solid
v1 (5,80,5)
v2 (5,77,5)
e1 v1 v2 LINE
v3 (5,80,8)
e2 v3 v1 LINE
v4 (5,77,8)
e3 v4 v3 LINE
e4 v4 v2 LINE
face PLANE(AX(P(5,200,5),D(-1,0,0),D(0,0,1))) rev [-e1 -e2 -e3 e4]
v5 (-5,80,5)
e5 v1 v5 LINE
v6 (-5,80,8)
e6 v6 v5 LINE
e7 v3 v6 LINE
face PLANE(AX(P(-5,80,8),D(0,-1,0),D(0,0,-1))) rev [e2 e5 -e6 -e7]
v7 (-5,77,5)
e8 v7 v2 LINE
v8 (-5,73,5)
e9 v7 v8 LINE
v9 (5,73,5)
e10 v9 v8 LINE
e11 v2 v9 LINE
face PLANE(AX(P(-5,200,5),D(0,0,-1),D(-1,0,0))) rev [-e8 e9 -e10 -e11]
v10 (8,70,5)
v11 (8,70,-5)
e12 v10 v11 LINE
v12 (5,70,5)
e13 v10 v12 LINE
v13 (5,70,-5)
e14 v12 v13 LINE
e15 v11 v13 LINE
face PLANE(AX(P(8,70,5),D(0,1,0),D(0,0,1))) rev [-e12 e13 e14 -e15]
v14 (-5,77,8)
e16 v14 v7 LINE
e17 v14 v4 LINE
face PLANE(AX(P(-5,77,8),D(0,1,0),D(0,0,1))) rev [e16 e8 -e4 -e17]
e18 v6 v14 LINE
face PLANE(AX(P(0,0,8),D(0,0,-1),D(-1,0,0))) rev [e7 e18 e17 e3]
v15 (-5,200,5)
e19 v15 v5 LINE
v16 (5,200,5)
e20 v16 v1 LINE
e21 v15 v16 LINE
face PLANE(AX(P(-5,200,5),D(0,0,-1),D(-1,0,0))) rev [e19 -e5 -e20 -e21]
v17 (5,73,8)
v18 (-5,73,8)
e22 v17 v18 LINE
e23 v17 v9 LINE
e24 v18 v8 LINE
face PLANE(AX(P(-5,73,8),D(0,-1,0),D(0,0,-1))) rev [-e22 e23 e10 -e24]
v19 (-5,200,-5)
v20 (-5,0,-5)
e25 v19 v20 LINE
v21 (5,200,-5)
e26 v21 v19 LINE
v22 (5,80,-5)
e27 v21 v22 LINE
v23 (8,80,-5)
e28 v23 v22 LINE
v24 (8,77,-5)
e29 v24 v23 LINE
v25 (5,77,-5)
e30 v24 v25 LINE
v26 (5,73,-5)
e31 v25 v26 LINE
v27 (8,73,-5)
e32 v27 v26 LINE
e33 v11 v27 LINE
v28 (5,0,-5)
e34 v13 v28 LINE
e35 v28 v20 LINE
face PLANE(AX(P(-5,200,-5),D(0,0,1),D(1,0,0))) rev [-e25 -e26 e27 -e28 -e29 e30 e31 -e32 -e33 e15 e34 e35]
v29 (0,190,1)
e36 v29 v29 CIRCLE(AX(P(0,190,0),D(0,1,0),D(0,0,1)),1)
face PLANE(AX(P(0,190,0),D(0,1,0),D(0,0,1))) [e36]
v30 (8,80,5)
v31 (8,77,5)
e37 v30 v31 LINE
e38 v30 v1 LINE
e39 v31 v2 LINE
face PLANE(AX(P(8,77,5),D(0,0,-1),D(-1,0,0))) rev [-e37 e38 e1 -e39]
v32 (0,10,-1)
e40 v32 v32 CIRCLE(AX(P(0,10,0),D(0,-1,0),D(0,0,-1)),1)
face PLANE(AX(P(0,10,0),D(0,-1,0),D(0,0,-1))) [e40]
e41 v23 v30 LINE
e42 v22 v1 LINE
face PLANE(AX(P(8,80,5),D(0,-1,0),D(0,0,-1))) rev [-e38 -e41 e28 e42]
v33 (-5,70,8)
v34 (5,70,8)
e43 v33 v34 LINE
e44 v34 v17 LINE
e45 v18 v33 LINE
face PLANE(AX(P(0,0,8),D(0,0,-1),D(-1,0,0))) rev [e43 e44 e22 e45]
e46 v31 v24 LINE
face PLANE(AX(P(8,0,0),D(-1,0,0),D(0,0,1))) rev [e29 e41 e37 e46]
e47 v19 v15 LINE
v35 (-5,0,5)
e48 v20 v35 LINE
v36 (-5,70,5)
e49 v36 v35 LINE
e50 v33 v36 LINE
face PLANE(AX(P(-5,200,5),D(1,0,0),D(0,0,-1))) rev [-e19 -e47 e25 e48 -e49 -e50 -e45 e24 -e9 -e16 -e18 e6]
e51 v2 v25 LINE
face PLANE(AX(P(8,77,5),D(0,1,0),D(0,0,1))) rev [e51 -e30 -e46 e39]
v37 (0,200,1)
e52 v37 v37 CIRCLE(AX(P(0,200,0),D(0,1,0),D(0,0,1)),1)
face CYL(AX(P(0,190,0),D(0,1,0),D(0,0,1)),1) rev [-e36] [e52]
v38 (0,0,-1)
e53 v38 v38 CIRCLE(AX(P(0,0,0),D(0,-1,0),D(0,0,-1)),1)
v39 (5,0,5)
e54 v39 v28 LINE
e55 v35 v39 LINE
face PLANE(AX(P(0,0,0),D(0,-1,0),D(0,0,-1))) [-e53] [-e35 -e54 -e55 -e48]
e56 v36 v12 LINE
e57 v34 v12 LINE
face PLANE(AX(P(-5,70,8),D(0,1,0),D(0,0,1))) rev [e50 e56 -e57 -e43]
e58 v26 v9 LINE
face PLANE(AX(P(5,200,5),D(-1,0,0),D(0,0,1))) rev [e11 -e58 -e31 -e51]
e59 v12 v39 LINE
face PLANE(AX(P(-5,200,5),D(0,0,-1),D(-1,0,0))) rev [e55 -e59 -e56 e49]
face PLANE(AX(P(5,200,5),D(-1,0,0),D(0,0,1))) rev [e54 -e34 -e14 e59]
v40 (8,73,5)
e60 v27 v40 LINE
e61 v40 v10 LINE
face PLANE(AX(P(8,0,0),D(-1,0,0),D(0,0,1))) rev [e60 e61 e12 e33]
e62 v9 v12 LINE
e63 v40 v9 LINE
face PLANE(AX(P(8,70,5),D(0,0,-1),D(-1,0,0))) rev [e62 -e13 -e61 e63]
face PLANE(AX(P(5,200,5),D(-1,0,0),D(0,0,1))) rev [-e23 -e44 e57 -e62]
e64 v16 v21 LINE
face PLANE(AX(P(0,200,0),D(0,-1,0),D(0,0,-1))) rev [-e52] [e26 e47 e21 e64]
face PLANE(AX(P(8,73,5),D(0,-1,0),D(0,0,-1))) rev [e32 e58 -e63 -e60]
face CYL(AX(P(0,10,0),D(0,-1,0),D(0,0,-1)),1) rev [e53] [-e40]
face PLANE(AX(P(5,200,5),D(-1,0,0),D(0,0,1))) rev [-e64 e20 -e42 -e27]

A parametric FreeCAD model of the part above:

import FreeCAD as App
import Part
import Sketcher


def add_polygon(sketch, points):
    """Adds a closed chain of lines whose ends are joined by coincident constraints."""
    first, n = sketch.GeometryCount, len(points)
    for a, b in zip(points, points[1:] + points[:1]):
        sketch.addGeometry(Part.LineSegment(App.Vector(*a, 0), App.Vector(*b, 0)), False)
    for i in range(n):
        sketch.addConstraint(Sketcher.Constraint("Coincident", first + i, 2, first + (i + 1) % n, 1))

doc = App.newDocument("Part")
params = doc.addObject("Spreadsheet::Sheet", "Params")
for row, (alias, value) in enumerate([
    ("sketch1_width", "10 mm"),
    ("pad1_length", "200 mm"),
    ("sketch2_diameter", "2 mm"),
    ("pocket1_length", "10 mm"),
    ("sketch3_diameter", "2 mm"),
    ("pocket2_length", "10 mm"),
    ("sketch4_width", "10 mm"),
    ("sketch4_height", "3 mm"),
    ("pad2_length", "3 mm"),
    ("sketch5_width", "3 mm"),
    ("sketch5_height", "10 mm"),
    ("pad3_length", "3 mm"),
], start=1):
    params.set(f"A{row}", alias)
    params.set(f"B{row}", "=" + value)
    params.setAlias(f"B{row}", alias)

body = doc.addObject("PartDesign::Body", "Body")

sketch1 = doc.addObject("Sketcher::SketchObject", "Sketch")
body.addObject(sketch1)
sketch1.AttachmentSupport = (doc.XZ_Plane, [""])
sketch1.MapMode = "FlatFace"
add_polygon(sketch1, [(-5, -5), (-5, 5), (5, 5), (5, -5)])
sketch1.addConstraint(Sketcher.Constraint("Vertical", 0))
sketch1.addConstraint(Sketcher.Constraint("Horizontal", 1))
sketch1.addConstraint(Sketcher.Constraint("Vertical", 2))
sketch1.addConstraint(Sketcher.Constraint("Horizontal", 3))
sketch1.addConstraint(Sketcher.Constraint("Symmetric", 0, 2, 2, 2, -1, 1))
sketch1.addConstraint(Sketcher.Constraint("Equal", 3, 0))
sketch1.addConstraint(Sketcher.Constraint("DistanceX", 1, 1, 1, 2, 10.0))
sketch1.setExpression("Constraints[10]", "Params.sketch1_width")
pad1 = doc.addObject("PartDesign::Pad", "Pad")
body.addObject(pad1)
pad1.Profile = sketch1
pad1.setExpression("Length", "Params.pad1_length")
pad1.Reversed = True

sketch2 = doc.addObject("Sketcher::SketchObject", "Sketch001")
body.addObject(sketch2)
sketch2.AttachmentSupport = (doc.XZ_Plane, [""])
sketch2.MapMode = "FlatFace"
sketch2.AttachmentOffset = App.Placement(App.Vector(0, 0, -200), App.Rotation())
sketch2.addGeometry(Part.Circle(App.Vector(0, 0, 0), App.Vector(0, 0, 1), 1), False)
sketch2.addConstraint(Sketcher.Constraint("Coincident", 0, 3, -1, 1))
sketch2.addConstraint(Sketcher.Constraint("Diameter", 0, 2.0))
sketch2.setExpression("Constraints[1]", "Params.sketch2_diameter")
pocket1 = doc.addObject("PartDesign::Pocket", "Pocket")
body.addObject(pocket1)
pocket1.Profile = sketch2
pocket1.setExpression("Length", "Params.pocket1_length")
pocket1.Reversed = True

sketch3 = doc.addObject("Sketcher::SketchObject", "Sketch002")
body.addObject(sketch3)
sketch3.AttachmentSupport = (doc.XZ_Plane, [""])
sketch3.MapMode = "FlatFace"
sketch3.AttachmentOffset = App.Placement(App.Vector(0, 0, -10), App.Rotation())
sketch3.addGeometry(Part.Circle(App.Vector(0, 0, 0), App.Vector(0, 0, 1), 1), False)
sketch3.addConstraint(Sketcher.Constraint("Coincident", 0, 3, -1, 1))
sketch3.addConstraint(Sketcher.Constraint("Diameter", 0, 2.0))
sketch3.setExpression("Constraints[1]", "Params.sketch3_diameter")
pocket2 = doc.addObject("PartDesign::Pocket", "Pocket001")
body.addObject(pocket2)
pocket2.Profile = sketch3
pocket2.setExpression("Length", "Params.pocket2_length")
pocket2.Reversed = True

sketch4 = doc.addObject("Sketcher::SketchObject", "Sketch003")
body.addObject(sketch4)
sketch4.AttachmentSupport = (doc.XY_Plane, [""])
sketch4.MapMode = "FlatFace"
sketch4.AttachmentOffset = App.Placement(App.Vector(0, 0, 5), App.Rotation())
add_polygon(sketch4, [(-5, 73), (-5, 70), (5, 70), (5, 73)])
add_polygon(sketch4, [(-5, 80), (-5, 77), (5, 77), (5, 80)])
sketch4.addConstraint(Sketcher.Constraint("Vertical", 0))
sketch4.addConstraint(Sketcher.Constraint("Horizontal", 1))
sketch4.addConstraint(Sketcher.Constraint("Vertical", 2))
sketch4.addConstraint(Sketcher.Constraint("Horizontal", 3))
sketch4.addConstraint(Sketcher.Constraint("Vertical", 4))
sketch4.addConstraint(Sketcher.Constraint("Horizontal", 5))
sketch4.addConstraint(Sketcher.Constraint("Vertical", 6))
sketch4.addConstraint(Sketcher.Constraint("Horizontal", 7))
sketch4.addConstraint(Sketcher.Constraint("Vertical", 3, 2, 4, 2))
sketch4.addConstraint(Sketcher.Constraint("Vertical", 2, 2, 5, 2))
sketch4.addConstraint(Sketcher.Constraint("Equal", 2, 4))
sketch4.addConstraint(Sketcher.Constraint("DistanceX", 1, 1, 1, 2, 10.0))
sketch4.addConstraint(Sketcher.Constraint("DistanceY", 0, 2, 0, 1, 3.0))
sketch4.addConstraint(Sketcher.Constraint("DistanceX", 0, 2, -1, 1, 5.0))
sketch4.addConstraint(Sketcher.Constraint("DistanceY", -1, 1, 0, 2, 70.0))
sketch4.addConstraint(Sketcher.Constraint("DistanceY", -1, 1, 4, 2, 77.0))
sketch4.setExpression("Constraints[19]", "Params.sketch4_width")
sketch4.setExpression("Constraints[20]", "Params.sketch4_height")
pad2 = doc.addObject("PartDesign::Pad", "Pad001")
body.addObject(pad2)
pad2.Profile = sketch4
pad2.setExpression("Length", "Params.pad2_length")

sketch5 = doc.addObject("Sketcher::SketchObject", "Sketch004")
body.addObject(sketch5)
sketch5.AttachmentSupport = (doc.YZ_Plane, [""])
sketch5.MapMode = "FlatFace"
sketch5.AttachmentOffset = App.Placement(App.Vector(0, 0, 5), App.Rotation())
add_polygon(sketch5, [(73, 5), (70, 5), (70, -5), (73, -5)])
add_polygon(sketch5, [(80, 5), (77, 5), (77, -5), (80, -5)])
sketch5.addConstraint(Sketcher.Constraint("Horizontal", 0))
sketch5.addConstraint(Sketcher.Constraint("Vertical", 1))
sketch5.addConstraint(Sketcher.Constraint("Horizontal", 2))
sketch5.addConstraint(Sketcher.Constraint("Vertical", 3))
sketch5.addConstraint(Sketcher.Constraint("Horizontal", 4))
sketch5.addConstraint(Sketcher.Constraint("Vertical", 5))
sketch5.addConstraint(Sketcher.Constraint("Horizontal", 6))
sketch5.addConstraint(Sketcher.Constraint("Vertical", 7))
sketch5.addConstraint(Sketcher.Constraint("Horizontal", 3, 2, 4, 2))
sketch5.addConstraint(Sketcher.Constraint("Horizontal", 2, 2, 5, 2))
sketch5.addConstraint(Sketcher.Constraint("Equal", 2, 4))
sketch5.addConstraint(Sketcher.Constraint("DistanceX", 0, 2, 0, 1, 3.0))
sketch5.addConstraint(Sketcher.Constraint("DistanceY", 1, 2, 1, 1, 10.0))
sketch5.addConstraint(Sketcher.Constraint("DistanceX", -1, 1, 0, 2, 70.0))
sketch5.addConstraint(Sketcher.Constraint("DistanceY", -1, 1, 0, 2, 5.0))
sketch5.addConstraint(Sketcher.Constraint("DistanceX", -1, 1, 4, 2, 77.0))
sketch5.setExpression("Constraints[19]", "Params.sketch5_width")
sketch5.setExpression("Constraints[20]", "Params.sketch5_height")
pad3 = doc.addObject("PartDesign::Pad", "Pad002")
body.addObject(pad3)
pad3.Profile = sketch5
pad3.setExpression("Length", "Params.pad3_length")

doc.recompute()
